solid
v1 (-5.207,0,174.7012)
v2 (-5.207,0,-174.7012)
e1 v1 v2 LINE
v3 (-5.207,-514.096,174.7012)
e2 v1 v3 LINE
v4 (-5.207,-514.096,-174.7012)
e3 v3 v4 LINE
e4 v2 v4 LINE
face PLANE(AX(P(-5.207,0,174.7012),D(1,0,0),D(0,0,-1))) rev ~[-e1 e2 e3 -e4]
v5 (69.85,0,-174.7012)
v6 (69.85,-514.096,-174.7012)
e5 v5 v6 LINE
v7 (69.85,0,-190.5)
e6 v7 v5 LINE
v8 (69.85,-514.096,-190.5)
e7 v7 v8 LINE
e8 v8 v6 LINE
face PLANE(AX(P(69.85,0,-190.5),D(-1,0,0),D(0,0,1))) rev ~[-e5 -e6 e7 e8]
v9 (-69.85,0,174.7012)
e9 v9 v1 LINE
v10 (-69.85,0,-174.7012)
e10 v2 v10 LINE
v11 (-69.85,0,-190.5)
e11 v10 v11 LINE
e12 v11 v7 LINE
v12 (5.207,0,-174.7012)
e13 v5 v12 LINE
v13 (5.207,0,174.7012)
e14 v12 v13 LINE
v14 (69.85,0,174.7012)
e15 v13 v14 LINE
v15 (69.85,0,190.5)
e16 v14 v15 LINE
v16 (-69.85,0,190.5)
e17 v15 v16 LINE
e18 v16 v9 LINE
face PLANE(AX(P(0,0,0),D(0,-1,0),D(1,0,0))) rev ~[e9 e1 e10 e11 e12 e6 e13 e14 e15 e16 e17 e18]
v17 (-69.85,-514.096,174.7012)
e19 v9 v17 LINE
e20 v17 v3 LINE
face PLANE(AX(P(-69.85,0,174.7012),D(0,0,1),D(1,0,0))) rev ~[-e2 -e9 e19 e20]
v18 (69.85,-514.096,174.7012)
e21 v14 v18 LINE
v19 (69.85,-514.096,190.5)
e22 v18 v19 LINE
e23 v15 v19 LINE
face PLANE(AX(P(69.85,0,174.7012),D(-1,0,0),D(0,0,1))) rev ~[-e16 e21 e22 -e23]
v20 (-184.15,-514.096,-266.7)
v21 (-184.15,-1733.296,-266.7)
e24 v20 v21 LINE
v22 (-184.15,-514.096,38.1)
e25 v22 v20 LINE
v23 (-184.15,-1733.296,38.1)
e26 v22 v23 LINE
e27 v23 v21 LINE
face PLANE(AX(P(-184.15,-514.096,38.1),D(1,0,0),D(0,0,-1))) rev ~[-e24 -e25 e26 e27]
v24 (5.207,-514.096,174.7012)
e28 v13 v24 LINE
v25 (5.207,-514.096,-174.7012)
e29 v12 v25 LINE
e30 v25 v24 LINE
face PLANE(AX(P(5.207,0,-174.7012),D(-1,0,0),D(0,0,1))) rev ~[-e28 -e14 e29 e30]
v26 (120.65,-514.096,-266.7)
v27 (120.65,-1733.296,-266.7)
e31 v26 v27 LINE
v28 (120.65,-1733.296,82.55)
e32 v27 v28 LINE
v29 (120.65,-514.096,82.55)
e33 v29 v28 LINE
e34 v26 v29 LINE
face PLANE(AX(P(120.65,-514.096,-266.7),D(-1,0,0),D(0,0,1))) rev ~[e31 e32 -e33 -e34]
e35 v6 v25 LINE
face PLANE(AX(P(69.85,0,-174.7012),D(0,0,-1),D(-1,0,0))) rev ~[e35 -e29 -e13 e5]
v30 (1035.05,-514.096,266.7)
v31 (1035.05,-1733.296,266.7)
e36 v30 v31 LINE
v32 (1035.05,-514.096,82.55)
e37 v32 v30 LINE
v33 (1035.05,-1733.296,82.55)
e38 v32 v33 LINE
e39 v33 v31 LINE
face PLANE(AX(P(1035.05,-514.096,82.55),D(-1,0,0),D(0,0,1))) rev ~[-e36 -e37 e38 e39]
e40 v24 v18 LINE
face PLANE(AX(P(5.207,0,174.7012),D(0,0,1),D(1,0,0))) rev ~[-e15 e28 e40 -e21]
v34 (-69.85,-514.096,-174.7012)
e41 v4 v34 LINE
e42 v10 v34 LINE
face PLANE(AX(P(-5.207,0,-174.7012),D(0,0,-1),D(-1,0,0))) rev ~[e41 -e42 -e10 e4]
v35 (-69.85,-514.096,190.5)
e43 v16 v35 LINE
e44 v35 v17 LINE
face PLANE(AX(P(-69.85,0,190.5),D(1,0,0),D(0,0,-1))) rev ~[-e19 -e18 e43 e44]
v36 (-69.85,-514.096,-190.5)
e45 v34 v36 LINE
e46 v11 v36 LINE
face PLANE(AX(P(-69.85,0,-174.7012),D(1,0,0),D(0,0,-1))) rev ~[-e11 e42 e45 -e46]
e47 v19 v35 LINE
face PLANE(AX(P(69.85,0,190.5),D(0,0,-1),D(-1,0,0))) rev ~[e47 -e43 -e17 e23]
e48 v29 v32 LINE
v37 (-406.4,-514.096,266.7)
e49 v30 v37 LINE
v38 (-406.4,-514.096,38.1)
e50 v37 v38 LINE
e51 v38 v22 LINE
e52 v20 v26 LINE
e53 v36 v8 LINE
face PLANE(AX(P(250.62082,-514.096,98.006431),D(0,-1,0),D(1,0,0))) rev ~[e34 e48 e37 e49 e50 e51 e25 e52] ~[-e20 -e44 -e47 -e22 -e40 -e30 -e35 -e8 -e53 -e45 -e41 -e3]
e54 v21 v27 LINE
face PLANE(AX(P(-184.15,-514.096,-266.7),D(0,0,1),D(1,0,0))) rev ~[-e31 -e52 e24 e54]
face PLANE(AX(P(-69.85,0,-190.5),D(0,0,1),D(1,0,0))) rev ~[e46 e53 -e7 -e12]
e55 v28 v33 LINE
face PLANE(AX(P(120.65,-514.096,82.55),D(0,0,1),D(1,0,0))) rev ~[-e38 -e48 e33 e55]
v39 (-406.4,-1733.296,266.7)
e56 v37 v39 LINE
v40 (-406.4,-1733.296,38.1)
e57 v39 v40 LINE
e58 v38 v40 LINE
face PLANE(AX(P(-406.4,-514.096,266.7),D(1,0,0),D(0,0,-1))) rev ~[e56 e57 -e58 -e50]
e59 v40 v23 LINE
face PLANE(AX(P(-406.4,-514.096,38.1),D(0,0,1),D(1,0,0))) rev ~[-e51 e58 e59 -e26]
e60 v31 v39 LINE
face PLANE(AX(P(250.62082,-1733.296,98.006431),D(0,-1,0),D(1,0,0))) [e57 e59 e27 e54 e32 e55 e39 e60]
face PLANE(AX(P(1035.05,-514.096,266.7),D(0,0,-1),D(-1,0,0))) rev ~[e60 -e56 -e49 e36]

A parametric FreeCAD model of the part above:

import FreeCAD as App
import Part
import Sketcher
from FreeCAD import Vector
Q = App.Units.Quantity

doc = App.newDocument("Part")
params = doc.addObject("Spreadsheet::Sheet", "Params")
for row, (alias, value) in enumerate([
    ("sketch1_width", "5.5 in"),
    ("sketch1_width2", "2.545 in"),
    ("sketch1_height", "0.622 in"),
    ("pad1_length", "20.24 in"),
    ("sketch2_width", "12 in"),
    ("sketch2_width2", "36 in"),
    ("sketch2_height", "9 in"),
    ("sketch2_width3", "56.75 in"),
    ("sketch2_height2", "7.25 in"),
    ("pad2_length", "48 in"),
], start=1):
    params.set(f"A{row}", alias)
    params.set(f"B{row}", "=" + value)
    params.setAlias(f"B{row}", alias)

body = doc.addObject("PartDesign::Body", "Body")

# Sketch on XZ plane
sketch1 = body.newObject("Sketcher::SketchObject", "Sketch")
sketch1.AttachmentSupport = (doc.getObject("XZ_Plane"), [""])
sketch1.MapMode = "FlatFace"
sketch1.addGeometry(Part.LineSegment(Vector(70, 190, 0), Vector(-70, 190, 0)), False)
sketch1.addGeometry(Part.LineSegment(Vector(-70, 190, 0), Vector(-70, 175, 0)), False)
sketch1.addGeometry(Part.LineSegment(Vector(-70, 175, 0), Vector(-5, 175, 0)), False)
sketch1.addGeometry(Part.LineSegment(Vector(-5, 175, 0), Vector(-5, -175, 0)), False)
sketch1.addGeometry(Part.LineSegment(Vector(-5, -175, 0), Vector(-70, -175, 0)), False)
sketch1.addGeometry(Part.LineSegment(Vector(-70, -175, 0), Vector(-70, -190, 0)), False)
sketch1.addGeometry(Part.LineSegment(Vector(-70, -190, 0), Vector(70, -190, 0)), False)
sketch1.addGeometry(Part.LineSegment(Vector(70, -190, 0), Vector(70, -175, 0)), False)
sketch1.addGeometry(Part.LineSegment(Vector(70, -175, 0), Vector(5, -175, 0)), False)
sketch1.addGeometry(Part.LineSegment(Vector(5, -175, 0), Vector(5, 175, 0)), False)
sketch1.addGeometry(Part.LineSegment(Vector(5, 175, 0), Vector(70, 175, 0)), False)
sketch1.addGeometry(Part.LineSegment(Vector(70, 175, 0), Vector(70, 190, 0)), False)
sketch1.addConstraint(Sketcher.Constraint("Coincident", 0, 2, 1, 1))
sketch1.addConstraint(Sketcher.Constraint("Coincident", 1, 2, 2, 1))
sketch1.addConstraint(Sketcher.Constraint("Coincident", 2, 2, 3, 1))
sketch1.addConstraint(Sketcher.Constraint("Coincident", 3, 2, 4, 1))
sketch1.addConstraint(Sketcher.Constraint("Coincident", 4, 2, 5, 1))
sketch1.addConstraint(Sketcher.Constraint("Coincident", 5, 2, 6, 1))
sketch1.addConstraint(Sketcher.Constraint("Coincident", 6, 2, 7, 1))
sketch1.addConstraint(Sketcher.Constraint("Coincident", 7, 2, 8, 1))
sketch1.addConstraint(Sketcher.Constraint("Coincident", 8, 2, 9, 1))
sketch1.addConstraint(Sketcher.Constraint("Coincident", 9, 2, 10, 1))
sketch1.addConstraint(Sketcher.Constraint("Coincident", 10, 2, 11, 1))
sketch1.addConstraint(Sketcher.Constraint("Coincident", 11, 2, 0, 1))
sketch1.addConstraint(Sketcher.Constraint("Horizontal", 0))
sketch1.addConstraint(Sketcher.Constraint("Vertical", 1))
sketch1.addConstraint(Sketcher.Constraint("Horizontal", 2))
sketch1.addConstraint(Sketcher.Constraint("Vertical", 3))
sketch1.addConstraint(Sketcher.Constraint("Horizontal", 4))
sketch1.addConstraint(Sketcher.Constraint("Vertical", 5))
sketch1.addConstraint(Sketcher.Constraint("Horizontal", 6))
sketch1.addConstraint(Sketcher.Constraint("Vertical", 7))
sketch1.addConstraint(Sketcher.Constraint("Horizontal", 8))
sketch1.addConstraint(Sketcher.Constraint("Vertical", 9))
sketch1.addConstraint(Sketcher.Constraint("Horizontal", 10))
sketch1.addConstraint(Sketcher.Constraint("Vertical", 11))
sketch1.addConstraint(Sketcher.Constraint("Symmetric", 0, 2, 6, 2, -1, 1))
sketch1.addConstraint(Sketcher.Constraint("Symmetric", 2, 2, 8, 2, -1, 1))
sketch1.addConstraint(Sketcher.Constraint("Symmetric", 4, 2, 10, 2, -1, 1))
sketch1.addConstraint(Sketcher.Constraint("Symmetric", 4, 2, 7, 2, -2))
sketch1.addConstraint(Sketcher.Constraint("DistanceX", 0, 2, 0, 1, Q("5.5 in")))
sketch1.addConstraint(Sketcher.Constraint("DistanceY", 5, 2, 0, 2, Q("15 in")))
sketch1.addConstraint(Sketcher.Constraint("DistanceX", 2, 1, 2, 2, Q("2.545 in")))
sketch1.addConstraint(Sketcher.Constraint("DistanceY", 1, 2, 1, 1, Q("0.622 in")))
sketch1.setExpression("Constraints[28]", "Params.sketch1_width")
sketch1.setExpression("Constraints[30]", "Params.sketch1_width2")
sketch1.setExpression("Constraints[31]", "Params.sketch1_height")
pad1 = body.newObject("PartDesign::Pad", "Pad")
pad1.Profile = sketch1
pad1.setExpression("Length", "Params.pad1_length")

# Sketch on XZ plane
sketch2 = body.newObject("Sketcher::SketchObject", "Sketch001")
sketch2.AttachmentSupport = (doc.getObject("XZ_Plane"), [""])
sketch2.MapMode = "FlatFace"
sketch2.AttachmentOffset = App.Placement(Vector(0, 0, 20.24 * 25.4), App.Rotation())
sketch2.addGeometry(Part.LineSegment(Vector(1035, 83, 0), Vector(1035, 267, 0)), False)
sketch2.addGeometry(Part.LineSegment(Vector(1035, 267, 0), Vector(-406, 267, 0)), False)
sketch2.addGeometry(Part.LineSegment(Vector(-406, 267, 0), Vector(-406, 38, 0)), False)
sketch2.addGeometry(Part.LineSegment(Vector(-406, 38, 0), Vector(-184, 38, 0)), False)
sketch2.addGeometry(Part.LineSegment(Vector(-184, 38, 0), Vector(-184, -267, 0)), False)
sketch2.addGeometry(Part.LineSegment(Vector(-184, -267, 0), Vector(121, -267, 0)), False)
sketch2.addGeometry(Part.LineSegment(Vector(121, -267, 0), Vector(121, 83, 0)), False)
sketch2.addGeometry(Part.LineSegment(Vector(121, 83, 0), Vector(1035, 83, 0)), False)
sketch2.addConstraint(Sketcher.Constraint("Coincident", 0, 2, 1, 1))
sketch2.addConstraint(Sketcher.Constraint("Coincident", 1, 2, 2, 1))
sketch2.addConstraint(Sketcher.Constraint("Coincident", 2, 2, 3, 1))
sketch2.addConstraint(Sketcher.Constraint("Coincident", 3, 2, 4, 1))
sketch2.addConstraint(Sketcher.Constraint("Coincident", 4, 2, 5, 1))
sketch2.addConstraint(Sketcher.Constraint("Coincident", 5, 2, 6, 1))
sketch2.addConstraint(Sketcher.Constraint("Coincident", 6, 2, 7, 1))
sketch2.addConstraint(Sketcher.Constraint("Coincident", 7, 2, 0, 1))
sketch2.addConstraint(Sketcher.Constraint("Vertical", 0))
sketch2.addConstraint(Sketcher.Constraint("Horizontal", 1))
sketch2.addConstraint(Sketcher.Constraint("Vertical", 2))
sketch2.addConstraint(Sketcher.Constraint("Horizontal", 3))
sketch2.addConstraint(Sketcher.Constraint("Vertical", 4))
sketch2.addConstraint(Sketcher.Constraint("Horizontal", 5))
sketch2.addConstraint(Sketcher.Constraint("Vertical", 6))
sketch2.addConstraint(Sketcher.Constraint("Horizontal", 7))
sketch2.addConstraint(Sketcher.Constraint("Equal", 5, 4))
sketch2.addConstraint(Sketcher.Constraint("DistanceX", 5, 1, 5, 2, Q("12 in")))
sketch2.addConstraint(Sketcher.Constraint("DistanceX", 7, 1, 7, 2, Q("36 in")))
sketch2.addConstraint(Sketcher.Constraint("DistanceY", 2, 2, 2, 1, Q("9 in")))
sketch2.addConstraint(Sketcher.Constraint("DistanceX", 1, 2, -1, 1, Q("16 in")))
sketch2.addConstraint(Sketcher.Constraint("DistanceX", 1, 2, 1, 1, Q("56.75 in")))
sketch2.addConstraint(Sketcher.Constraint("DistanceY", 0, 1, 0, 2, Q("7.25 in")))
sketch2.addConstraint(Sketcher.Constraint("DistanceY", -1, 1, 0, 2, Q("10.5 in")))
sketch2.setExpression("Constraints[17]", "Params.sketch2_width")
sketch2.setExpression("Constraints[18]", "Params.sketch2_width2")
sketch2.setExpression("Constraints[19]", "Params.sketch2_height")
sketch2.setExpression("Constraints[21]", "Params.sketch2_width3")
sketch2.setExpression("Constraints[22]", "Params.sketch2_height2")
pad2 = body.newObject("PartDesign::Pad", "Pad001")
pad2.Profile = sketch2
pad2.setExpression("Length", "Params.pad2_length")

doc.recompute()
